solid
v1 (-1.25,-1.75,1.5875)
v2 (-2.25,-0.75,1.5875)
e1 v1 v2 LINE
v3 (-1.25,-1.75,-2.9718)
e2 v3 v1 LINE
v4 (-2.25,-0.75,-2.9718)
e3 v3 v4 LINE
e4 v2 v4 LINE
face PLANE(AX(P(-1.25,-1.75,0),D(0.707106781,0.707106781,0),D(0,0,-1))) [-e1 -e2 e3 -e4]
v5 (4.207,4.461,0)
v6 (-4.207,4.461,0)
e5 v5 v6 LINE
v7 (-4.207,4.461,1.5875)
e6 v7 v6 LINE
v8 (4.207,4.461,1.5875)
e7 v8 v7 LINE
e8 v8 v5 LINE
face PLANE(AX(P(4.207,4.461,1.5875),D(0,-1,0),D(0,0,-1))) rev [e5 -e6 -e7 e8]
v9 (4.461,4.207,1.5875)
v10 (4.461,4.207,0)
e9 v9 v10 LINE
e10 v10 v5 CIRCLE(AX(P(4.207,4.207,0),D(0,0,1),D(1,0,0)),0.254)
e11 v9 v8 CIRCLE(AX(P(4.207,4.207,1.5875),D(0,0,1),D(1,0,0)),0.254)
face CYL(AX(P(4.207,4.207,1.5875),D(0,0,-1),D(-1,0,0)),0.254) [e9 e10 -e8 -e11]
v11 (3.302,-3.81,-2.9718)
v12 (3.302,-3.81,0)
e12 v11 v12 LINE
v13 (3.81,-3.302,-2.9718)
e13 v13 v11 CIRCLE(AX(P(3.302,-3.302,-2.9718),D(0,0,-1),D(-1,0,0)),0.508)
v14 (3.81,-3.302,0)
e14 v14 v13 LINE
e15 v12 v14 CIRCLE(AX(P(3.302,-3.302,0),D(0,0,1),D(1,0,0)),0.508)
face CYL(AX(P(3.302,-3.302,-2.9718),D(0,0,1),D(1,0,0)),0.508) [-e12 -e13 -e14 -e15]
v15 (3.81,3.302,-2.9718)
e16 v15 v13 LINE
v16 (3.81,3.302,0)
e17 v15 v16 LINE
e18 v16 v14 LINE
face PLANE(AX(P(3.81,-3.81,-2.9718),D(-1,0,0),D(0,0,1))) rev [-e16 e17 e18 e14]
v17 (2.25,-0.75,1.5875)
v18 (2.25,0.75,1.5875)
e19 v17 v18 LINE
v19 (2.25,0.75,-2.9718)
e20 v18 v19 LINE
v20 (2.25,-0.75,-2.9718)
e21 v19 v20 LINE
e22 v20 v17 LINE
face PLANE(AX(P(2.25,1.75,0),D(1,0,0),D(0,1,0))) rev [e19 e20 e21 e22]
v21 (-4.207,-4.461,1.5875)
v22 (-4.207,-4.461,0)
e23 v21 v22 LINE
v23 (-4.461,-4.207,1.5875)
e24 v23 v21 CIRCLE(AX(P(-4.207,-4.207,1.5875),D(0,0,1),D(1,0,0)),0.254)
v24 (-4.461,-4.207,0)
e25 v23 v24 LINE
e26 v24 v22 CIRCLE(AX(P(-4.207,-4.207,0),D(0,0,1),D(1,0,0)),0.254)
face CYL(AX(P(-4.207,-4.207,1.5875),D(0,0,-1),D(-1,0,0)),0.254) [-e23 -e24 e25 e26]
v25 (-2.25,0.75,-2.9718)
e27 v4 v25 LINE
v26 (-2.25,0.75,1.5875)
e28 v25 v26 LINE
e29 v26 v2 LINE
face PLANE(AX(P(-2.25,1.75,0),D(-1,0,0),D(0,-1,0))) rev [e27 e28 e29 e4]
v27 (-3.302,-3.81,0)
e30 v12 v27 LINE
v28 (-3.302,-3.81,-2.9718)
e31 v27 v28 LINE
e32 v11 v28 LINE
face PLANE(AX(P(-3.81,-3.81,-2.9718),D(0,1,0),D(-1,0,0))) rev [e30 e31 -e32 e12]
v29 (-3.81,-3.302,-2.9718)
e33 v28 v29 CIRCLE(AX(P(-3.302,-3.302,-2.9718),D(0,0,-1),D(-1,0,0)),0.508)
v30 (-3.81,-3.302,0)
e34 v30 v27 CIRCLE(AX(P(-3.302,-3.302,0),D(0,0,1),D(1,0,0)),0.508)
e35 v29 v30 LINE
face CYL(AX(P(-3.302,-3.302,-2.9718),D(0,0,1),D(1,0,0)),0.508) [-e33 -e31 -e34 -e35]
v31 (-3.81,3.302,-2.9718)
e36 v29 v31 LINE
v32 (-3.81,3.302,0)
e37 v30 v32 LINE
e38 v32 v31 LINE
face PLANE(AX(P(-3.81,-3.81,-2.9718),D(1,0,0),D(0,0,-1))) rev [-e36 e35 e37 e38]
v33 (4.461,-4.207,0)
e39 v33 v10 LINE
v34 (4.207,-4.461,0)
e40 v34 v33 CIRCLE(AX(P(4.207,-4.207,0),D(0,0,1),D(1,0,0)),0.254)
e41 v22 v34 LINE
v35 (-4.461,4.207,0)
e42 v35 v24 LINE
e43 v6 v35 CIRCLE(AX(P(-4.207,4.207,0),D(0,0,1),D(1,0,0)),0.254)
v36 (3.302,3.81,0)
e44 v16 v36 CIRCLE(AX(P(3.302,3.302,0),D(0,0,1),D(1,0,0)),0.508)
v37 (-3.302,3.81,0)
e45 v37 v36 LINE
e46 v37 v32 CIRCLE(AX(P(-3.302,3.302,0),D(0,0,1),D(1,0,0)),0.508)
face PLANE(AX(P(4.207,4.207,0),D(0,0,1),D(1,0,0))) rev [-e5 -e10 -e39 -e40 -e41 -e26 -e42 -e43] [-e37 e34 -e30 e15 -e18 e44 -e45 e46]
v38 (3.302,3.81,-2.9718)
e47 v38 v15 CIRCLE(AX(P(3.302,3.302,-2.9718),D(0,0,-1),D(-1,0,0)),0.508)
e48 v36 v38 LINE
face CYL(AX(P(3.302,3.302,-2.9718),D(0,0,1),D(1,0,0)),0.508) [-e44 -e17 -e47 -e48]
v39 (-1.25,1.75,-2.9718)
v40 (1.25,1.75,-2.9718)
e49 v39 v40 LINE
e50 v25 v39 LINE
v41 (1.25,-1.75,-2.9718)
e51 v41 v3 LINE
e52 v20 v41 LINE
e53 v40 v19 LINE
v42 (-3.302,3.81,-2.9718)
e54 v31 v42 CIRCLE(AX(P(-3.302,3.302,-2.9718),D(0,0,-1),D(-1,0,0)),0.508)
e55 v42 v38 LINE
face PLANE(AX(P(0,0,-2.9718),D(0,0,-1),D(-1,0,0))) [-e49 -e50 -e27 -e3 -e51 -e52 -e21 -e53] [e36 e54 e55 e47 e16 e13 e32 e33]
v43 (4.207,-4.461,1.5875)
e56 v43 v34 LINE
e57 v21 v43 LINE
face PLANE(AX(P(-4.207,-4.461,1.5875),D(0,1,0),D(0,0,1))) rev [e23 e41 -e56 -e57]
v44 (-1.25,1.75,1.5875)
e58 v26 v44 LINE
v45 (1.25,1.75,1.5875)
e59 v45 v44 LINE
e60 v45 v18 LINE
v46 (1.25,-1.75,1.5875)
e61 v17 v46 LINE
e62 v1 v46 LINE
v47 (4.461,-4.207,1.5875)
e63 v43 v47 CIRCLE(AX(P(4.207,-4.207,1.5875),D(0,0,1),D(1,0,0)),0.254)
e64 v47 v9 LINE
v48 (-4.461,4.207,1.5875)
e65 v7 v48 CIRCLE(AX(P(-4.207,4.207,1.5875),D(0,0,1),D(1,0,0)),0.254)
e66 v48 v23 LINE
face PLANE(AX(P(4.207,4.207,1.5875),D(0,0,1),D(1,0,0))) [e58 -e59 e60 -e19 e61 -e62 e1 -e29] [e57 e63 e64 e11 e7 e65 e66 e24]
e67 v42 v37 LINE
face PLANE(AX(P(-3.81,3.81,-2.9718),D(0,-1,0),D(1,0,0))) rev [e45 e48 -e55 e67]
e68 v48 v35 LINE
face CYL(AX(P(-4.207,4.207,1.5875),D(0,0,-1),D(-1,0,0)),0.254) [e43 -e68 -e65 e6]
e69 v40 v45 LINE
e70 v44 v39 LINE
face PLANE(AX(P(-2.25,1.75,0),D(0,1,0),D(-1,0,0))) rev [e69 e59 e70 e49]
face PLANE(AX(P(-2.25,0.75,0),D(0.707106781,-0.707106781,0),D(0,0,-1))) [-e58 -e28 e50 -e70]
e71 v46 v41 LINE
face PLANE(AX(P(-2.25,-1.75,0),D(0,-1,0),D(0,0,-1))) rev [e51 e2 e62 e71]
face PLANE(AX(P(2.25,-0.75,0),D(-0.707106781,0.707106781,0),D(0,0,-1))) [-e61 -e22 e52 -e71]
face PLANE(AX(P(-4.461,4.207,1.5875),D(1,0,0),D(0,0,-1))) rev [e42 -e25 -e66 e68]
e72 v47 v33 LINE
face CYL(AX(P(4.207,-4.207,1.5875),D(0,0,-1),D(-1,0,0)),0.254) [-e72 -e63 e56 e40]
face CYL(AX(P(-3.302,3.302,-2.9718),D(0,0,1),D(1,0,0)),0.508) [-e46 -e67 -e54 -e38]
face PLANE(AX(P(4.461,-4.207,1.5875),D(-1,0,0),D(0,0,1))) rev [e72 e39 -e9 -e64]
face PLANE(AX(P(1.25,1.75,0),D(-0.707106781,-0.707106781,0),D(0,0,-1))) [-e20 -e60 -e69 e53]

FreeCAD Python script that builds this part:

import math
import FreeCAD as App
import Part
import Sketcher

V = App.Vector


def edges_at(feature, points):
    """Names of the edges that pass closest to the given points."""
    edges = feature.Shape.Edges
    near = lambda p: min(range(len(edges)), key=lambda i: edges[i].distToShape(Part.Vertex(*p))[0])
    return sorted({f"Edge{near(p) + 1}" for p in points})

doc = App.newDocument("Part")
body = doc.addObject("PartDesign::Body", "Body")

sketch1 = body.newObject("Sketcher::SketchObject", "Sketch")
sketch1.AttachmentSupport = (doc.getObject("XY_Plane"), [""])
sketch1.MapMode = "FlatFace"
sketch1.addGeometry(Part.LineSegment(V(4.21, 4.46, 0), V(-4.21, 4.46, 0)), False)
sketch1.addGeometry(Part.ArcOfCircle(Part.Circle(V(-4.21, 4.21, 0), V(0, 0, 1), 0.25), math.radians(90), math.radians(180)), False)
sketch1.addGeometry(Part.LineSegment(V(-4.46, 4.21, 0), V(-4.46, -4.21, 0)), False)
sketch1.addGeometry(Part.ArcOfCircle(Part.Circle(V(-4.21, -4.21, 0), V(0, 0, 1), 0.25), math.radians(-180), math.radians(-90)), False)
sketch1.addGeometry(Part.LineSegment(V(-4.21, -4.46, 0), V(4.21, -4.46, 0)), False)
sketch1.addGeometry(Part.ArcOfCircle(Part.Circle(V(4.21, -4.21, 0), V(0, 0, 1), 0.25), math.radians(-90), math.radians(0)), False)
sketch1.addGeometry(Part.LineSegment(V(4.46, -4.21, 0), V(4.46, 4.21, 0)), False)
sketch1.addGeometry(Part.ArcOfCircle(Part.Circle(V(4.21, 4.21, 0), V(0, 0, 1), 0.25), math.radians(0), math.radians(90)), False)
sketch1.addConstraint(Sketcher.Constraint("Tangent", 0, 2, 1, 1))
sketch1.addConstraint(Sketcher.Constraint("Tangent", 1, 2, 2, 1))
sketch1.addConstraint(Sketcher.Constraint("Tangent", 2, 2, 3, 1))
sketch1.addConstraint(Sketcher.Constraint("Tangent", 3, 2, 4, 1))
sketch1.addConstraint(Sketcher.Constraint("Tangent", 4, 2, 5, 1))
sketch1.addConstraint(Sketcher.Constraint("Tangent", 5, 2, 6, 1))
sketch1.addConstraint(Sketcher.Constraint("Tangent", 6, 2, 7, 1))
sketch1.addConstraint(Sketcher.Constraint("Tangent", 7, 2, 0, 1))
sketch1.addConstraint(Sketcher.Constraint("Horizontal", 0))
sketch1.addConstraint(Sketcher.Constraint("Vertical", 2))
sketch1.addConstraint(Sketcher.Constraint("Horizontal", 4))
sketch1.addConstraint(Sketcher.Constraint("Vertical", 6))
sketch1.addConstraint(Sketcher.Constraint("Equal", 1, 3))
sketch1.addConstraint(Sketcher.Constraint("Equal", 3, 5))
sketch1.addConstraint(Sketcher.Constraint("Equal", 5, 7))
sketch1.addConstraint(Sketcher.Constraint("Symmetric", 1, 3, 5, 3, -1, 1))
sketch1.addConstraint(Sketcher.Constraint("Equal", 4, 2))
sketch1.addConstraint(Sketcher.Constraint("Radius", 1, 0.254))
sketch1.addConstraint(Sketcher.Constraint("DistanceX", 0, 2, 0, 1, 8.414))
pad1 = body.newObject("PartDesign::Pad", "Pad")
pad1.Profile = sketch1
pad1.Length = 1.5875

sketch2 = body.newObject("Sketcher::SketchObject", "Sketch001")
sketch2.AttachmentSupport = (doc.getObject("XY_Plane"), [""])
sketch2.MapMode = "FlatFace"
sketch2.AttachmentOffset = App.Placement(V(0, 0, 1.5875), App.Rotation())
sketch2.addGeometry(Part.LineSegment(V(-2.2, 1.8, 0), V(-2.2, -1.8, 0)), False)
sketch2.addGeometry(Part.LineSegment(V(-2.2, -1.8, 0), V(2.2, -1.8, 0)), False)
sketch2.addGeometry(Part.LineSegment(V(2.2, -1.8, 0), V(2.2, 1.8, 0)), False)
sketch2.addGeometry(Part.LineSegment(V(2.2, 1.8, 0), V(-2.2, 1.8, 0)), False)
sketch2.addConstraint(Sketcher.Constraint("Coincident", 0, 2, 1, 1))
sketch2.addConstraint(Sketcher.Constraint("Coincident", 1, 2, 2, 1))
sketch2.addConstraint(Sketcher.Constraint("Coincident", 2, 2, 3, 1))
sketch2.addConstraint(Sketcher.Constraint("Coincident", 3, 2, 0, 1))
sketch2.addConstraint(Sketcher.Constraint("Vertical", 0))
sketch2.addConstraint(Sketcher.Constraint("Horizontal", 1))
sketch2.addConstraint(Sketcher.Constraint("Vertical", 2))
sketch2.addConstraint(Sketcher.Constraint("Horizontal", 3))
sketch2.addConstraint(Sketcher.Constraint("Symmetric", 0, 2, 2, 2, -1, 1))
sketch2.addConstraint(Sketcher.Constraint("DistanceX", 1, 1, 1, 2, 4.5))
sketch2.addConstraint(Sketcher.Constraint("DistanceY", 0, 2, 0, 1, 3.5))
pocket1 = body.newObject("PartDesign::Pocket", "Pocket")
pocket1.Profile = sketch2
pocket1.Type = "ThroughAll"
doc.recompute()

chamfer = body.newObject("PartDesign::Chamfer", "Chamfer")
chamfer.Base = (pocket1, edges_at(pocket1, [
    (2.25, 1.75, 0.794),
    (2.25, -1.75, 0.794),
    (-2.25, -1.75, 0.794),
    (-2.25, 1.75, 0.794),
]))
chamfer.Size = 1

sketch3 = body.newObject("Sketcher::SketchObject", "Sketch002")
sketch3.AttachmentSupport = (doc.getObject("XY_Plane"), [""])
sketch3.MapMode = "FlatFace"
sketch3.addGeometry(Part.LineSegment(V(3.8, 3.8, 0), V(3.8, -3.8, 0)), False)
sketch3.addGeometry(Part.LineSegment(V(3.8, -3.8, 0), V(-3.8, -3.8, 0)), False)
sketch3.addGeometry(Part.LineSegment(V(-3.8, -3.8, 0), V(-3.8, 3.8, 0)), False)
sketch3.addGeometry(Part.LineSegment(V(-3.8, 3.8, 0), V(3.8, 3.8, 0)), False)
sketch3.addGeometry(Part.LineSegment(V(-2.2, 0.8, 0), V(-2.2, -0.8, 0)), False)
sketch3.addGeometry(Part.LineSegment(V(-2.2, -0.8, 0), V(-1.2, -1.8, 0)), False)
sketch3.addGeometry(Part.LineSegment(V(-1.2, -1.8, 0), V(1.2, -1.8, 0)), False)
sketch3.addGeometry(Part.LineSegment(V(1.2, -1.8, 0), V(2.2, -0.8, 0)), False)
sketch3.addGeometry(Part.LineSegment(V(2.2, -0.8, 0), V(2.2, 0.8, 0)), False)
sketch3.addGeometry(Part.LineSegment(V(2.2, 0.8, 0), V(1.2, 1.8, 0)), False)
sketch3.addGeometry(Part.LineSegment(V(1.2, 1.8, 0), V(-1.2, 1.8, 0)), False)
sketch3.addGeometry(Part.LineSegment(V(-1.2, 1.8, 0), V(-2.2, 0.8, 0)), False)
sketch3.addConstraint(Sketcher.Constraint("Coincident", 0, 2, 1, 1))
sketch3.addConstraint(Sketcher.Constraint("Coincident", 1, 2, 2, 1))
sketch3.addConstraint(Sketcher.Constraint("Coincident", 2, 2, 3, 1))
sketch3.addConstraint(Sketcher.Constraint("Coincident", 3, 2, 0, 1))
sketch3.addConstraint(Sketcher.Constraint("Coincident", 4, 2, 5, 1))
sketch3.addConstraint(Sketcher.Constraint("Coincident", 5, 2, 6, 1))
sketch3.addConstraint(Sketcher.Constraint("Coincident", 6, 2, 7, 1))
sketch3.addConstraint(Sketcher.Constraint("Coincident", 7, 2, 8, 1))
sketch3.addConstraint(Sketcher.Constraint("Coincident", 8, 2, 9, 1))
sketch3.addConstraint(Sketcher.Constraint("Coincident", 9, 2, 10, 1))
sketch3.addConstraint(Sketcher.Constraint("Coincident", 10, 2, 11, 1))
sketch3.addConstraint(Sketcher.Constraint("Coincident", 11, 2, 4, 1))
sketch3.addConstraint(Sketcher.Constraint("Vertical", 0))
sketch3.addConstraint(Sketcher.Constraint("Horizontal", 1))
sketch3.addConstraint(Sketcher.Constraint("Vertical", 2))
sketch3.addConstraint(Sketcher.Constraint("Horizontal", 3))
sketch3.addConstraint(Sketcher.Constraint("Vertical", 4))
sketch3.addConstraint(Sketcher.Constraint("Horizontal", 6))
sketch3.addConstraint(Sketcher.Constraint("Vertical", 8))
sketch3.addConstraint(Sketcher.Constraint("Horizontal", 10))
sketch3.addConstraint(Sketcher.Constraint("Symmetric", 0, 2, 2, 2, -1, 1))
sketch3.addConstraint(Sketcher.Constraint("Symmetric", 4, 2, 8, 2, -1, 1))
sketch3.addConstraint(Sketcher.Constraint("Symmetric", 5, 2, 9, 2, -1, 1))
sketch3.addConstraint(Sketcher.Constraint("Perpendicular", 5, 7))
sketch3.addConstraint(Sketcher.Constraint("Perpendicular", 9, 11))
sketch3.addConstraint(Sketcher.Constraint("Horizontal", 4, 2, 7, 2))
sketch3.addConstraint(Sketcher.Constraint("Horizontal", 8, 2, 11, 2))
sketch3.addConstraint(Sketcher.Constraint("Vertical", 6, 2, 9, 2))
sketch3.addConstraint(Sketcher.Constraint("Equal", 3, 0))
sketch3.addConstraint(Sketcher.Constraint("DistanceX", 6, 1, 6, 2, 2.5))
sketch3.addConstraint(Sketcher.Constraint("DistanceY", 4, 2, 4, 1, 1.5))
sketch3.addConstraint(Sketcher.Constraint("DistanceX", 4, 2, 5, 2, 1.0))
sketch3.addConstraint(Sketcher.Constraint("DistanceX", 1, 2, 1, 1, 7.62))
pad2 = body.newObject("PartDesign::Pad", "Pad001")
pad2.Profile = sketch3
pad2.Length = 2.9718
pad2.Reversed = True
doc.recompute()

fillet = body.newObject("PartDesign::Fillet", "Fillet")
fillet.Base = (pad2, edges_at(pad2, [
    (3.81, 3.81, -1.486),
    (3.81, -3.81, -1.486),
    (-3.81, -3.81, -1.486),
    (-3.81, 3.81, -1.486),
]))
fillet.Radius = 0.508

doc.recompute()
